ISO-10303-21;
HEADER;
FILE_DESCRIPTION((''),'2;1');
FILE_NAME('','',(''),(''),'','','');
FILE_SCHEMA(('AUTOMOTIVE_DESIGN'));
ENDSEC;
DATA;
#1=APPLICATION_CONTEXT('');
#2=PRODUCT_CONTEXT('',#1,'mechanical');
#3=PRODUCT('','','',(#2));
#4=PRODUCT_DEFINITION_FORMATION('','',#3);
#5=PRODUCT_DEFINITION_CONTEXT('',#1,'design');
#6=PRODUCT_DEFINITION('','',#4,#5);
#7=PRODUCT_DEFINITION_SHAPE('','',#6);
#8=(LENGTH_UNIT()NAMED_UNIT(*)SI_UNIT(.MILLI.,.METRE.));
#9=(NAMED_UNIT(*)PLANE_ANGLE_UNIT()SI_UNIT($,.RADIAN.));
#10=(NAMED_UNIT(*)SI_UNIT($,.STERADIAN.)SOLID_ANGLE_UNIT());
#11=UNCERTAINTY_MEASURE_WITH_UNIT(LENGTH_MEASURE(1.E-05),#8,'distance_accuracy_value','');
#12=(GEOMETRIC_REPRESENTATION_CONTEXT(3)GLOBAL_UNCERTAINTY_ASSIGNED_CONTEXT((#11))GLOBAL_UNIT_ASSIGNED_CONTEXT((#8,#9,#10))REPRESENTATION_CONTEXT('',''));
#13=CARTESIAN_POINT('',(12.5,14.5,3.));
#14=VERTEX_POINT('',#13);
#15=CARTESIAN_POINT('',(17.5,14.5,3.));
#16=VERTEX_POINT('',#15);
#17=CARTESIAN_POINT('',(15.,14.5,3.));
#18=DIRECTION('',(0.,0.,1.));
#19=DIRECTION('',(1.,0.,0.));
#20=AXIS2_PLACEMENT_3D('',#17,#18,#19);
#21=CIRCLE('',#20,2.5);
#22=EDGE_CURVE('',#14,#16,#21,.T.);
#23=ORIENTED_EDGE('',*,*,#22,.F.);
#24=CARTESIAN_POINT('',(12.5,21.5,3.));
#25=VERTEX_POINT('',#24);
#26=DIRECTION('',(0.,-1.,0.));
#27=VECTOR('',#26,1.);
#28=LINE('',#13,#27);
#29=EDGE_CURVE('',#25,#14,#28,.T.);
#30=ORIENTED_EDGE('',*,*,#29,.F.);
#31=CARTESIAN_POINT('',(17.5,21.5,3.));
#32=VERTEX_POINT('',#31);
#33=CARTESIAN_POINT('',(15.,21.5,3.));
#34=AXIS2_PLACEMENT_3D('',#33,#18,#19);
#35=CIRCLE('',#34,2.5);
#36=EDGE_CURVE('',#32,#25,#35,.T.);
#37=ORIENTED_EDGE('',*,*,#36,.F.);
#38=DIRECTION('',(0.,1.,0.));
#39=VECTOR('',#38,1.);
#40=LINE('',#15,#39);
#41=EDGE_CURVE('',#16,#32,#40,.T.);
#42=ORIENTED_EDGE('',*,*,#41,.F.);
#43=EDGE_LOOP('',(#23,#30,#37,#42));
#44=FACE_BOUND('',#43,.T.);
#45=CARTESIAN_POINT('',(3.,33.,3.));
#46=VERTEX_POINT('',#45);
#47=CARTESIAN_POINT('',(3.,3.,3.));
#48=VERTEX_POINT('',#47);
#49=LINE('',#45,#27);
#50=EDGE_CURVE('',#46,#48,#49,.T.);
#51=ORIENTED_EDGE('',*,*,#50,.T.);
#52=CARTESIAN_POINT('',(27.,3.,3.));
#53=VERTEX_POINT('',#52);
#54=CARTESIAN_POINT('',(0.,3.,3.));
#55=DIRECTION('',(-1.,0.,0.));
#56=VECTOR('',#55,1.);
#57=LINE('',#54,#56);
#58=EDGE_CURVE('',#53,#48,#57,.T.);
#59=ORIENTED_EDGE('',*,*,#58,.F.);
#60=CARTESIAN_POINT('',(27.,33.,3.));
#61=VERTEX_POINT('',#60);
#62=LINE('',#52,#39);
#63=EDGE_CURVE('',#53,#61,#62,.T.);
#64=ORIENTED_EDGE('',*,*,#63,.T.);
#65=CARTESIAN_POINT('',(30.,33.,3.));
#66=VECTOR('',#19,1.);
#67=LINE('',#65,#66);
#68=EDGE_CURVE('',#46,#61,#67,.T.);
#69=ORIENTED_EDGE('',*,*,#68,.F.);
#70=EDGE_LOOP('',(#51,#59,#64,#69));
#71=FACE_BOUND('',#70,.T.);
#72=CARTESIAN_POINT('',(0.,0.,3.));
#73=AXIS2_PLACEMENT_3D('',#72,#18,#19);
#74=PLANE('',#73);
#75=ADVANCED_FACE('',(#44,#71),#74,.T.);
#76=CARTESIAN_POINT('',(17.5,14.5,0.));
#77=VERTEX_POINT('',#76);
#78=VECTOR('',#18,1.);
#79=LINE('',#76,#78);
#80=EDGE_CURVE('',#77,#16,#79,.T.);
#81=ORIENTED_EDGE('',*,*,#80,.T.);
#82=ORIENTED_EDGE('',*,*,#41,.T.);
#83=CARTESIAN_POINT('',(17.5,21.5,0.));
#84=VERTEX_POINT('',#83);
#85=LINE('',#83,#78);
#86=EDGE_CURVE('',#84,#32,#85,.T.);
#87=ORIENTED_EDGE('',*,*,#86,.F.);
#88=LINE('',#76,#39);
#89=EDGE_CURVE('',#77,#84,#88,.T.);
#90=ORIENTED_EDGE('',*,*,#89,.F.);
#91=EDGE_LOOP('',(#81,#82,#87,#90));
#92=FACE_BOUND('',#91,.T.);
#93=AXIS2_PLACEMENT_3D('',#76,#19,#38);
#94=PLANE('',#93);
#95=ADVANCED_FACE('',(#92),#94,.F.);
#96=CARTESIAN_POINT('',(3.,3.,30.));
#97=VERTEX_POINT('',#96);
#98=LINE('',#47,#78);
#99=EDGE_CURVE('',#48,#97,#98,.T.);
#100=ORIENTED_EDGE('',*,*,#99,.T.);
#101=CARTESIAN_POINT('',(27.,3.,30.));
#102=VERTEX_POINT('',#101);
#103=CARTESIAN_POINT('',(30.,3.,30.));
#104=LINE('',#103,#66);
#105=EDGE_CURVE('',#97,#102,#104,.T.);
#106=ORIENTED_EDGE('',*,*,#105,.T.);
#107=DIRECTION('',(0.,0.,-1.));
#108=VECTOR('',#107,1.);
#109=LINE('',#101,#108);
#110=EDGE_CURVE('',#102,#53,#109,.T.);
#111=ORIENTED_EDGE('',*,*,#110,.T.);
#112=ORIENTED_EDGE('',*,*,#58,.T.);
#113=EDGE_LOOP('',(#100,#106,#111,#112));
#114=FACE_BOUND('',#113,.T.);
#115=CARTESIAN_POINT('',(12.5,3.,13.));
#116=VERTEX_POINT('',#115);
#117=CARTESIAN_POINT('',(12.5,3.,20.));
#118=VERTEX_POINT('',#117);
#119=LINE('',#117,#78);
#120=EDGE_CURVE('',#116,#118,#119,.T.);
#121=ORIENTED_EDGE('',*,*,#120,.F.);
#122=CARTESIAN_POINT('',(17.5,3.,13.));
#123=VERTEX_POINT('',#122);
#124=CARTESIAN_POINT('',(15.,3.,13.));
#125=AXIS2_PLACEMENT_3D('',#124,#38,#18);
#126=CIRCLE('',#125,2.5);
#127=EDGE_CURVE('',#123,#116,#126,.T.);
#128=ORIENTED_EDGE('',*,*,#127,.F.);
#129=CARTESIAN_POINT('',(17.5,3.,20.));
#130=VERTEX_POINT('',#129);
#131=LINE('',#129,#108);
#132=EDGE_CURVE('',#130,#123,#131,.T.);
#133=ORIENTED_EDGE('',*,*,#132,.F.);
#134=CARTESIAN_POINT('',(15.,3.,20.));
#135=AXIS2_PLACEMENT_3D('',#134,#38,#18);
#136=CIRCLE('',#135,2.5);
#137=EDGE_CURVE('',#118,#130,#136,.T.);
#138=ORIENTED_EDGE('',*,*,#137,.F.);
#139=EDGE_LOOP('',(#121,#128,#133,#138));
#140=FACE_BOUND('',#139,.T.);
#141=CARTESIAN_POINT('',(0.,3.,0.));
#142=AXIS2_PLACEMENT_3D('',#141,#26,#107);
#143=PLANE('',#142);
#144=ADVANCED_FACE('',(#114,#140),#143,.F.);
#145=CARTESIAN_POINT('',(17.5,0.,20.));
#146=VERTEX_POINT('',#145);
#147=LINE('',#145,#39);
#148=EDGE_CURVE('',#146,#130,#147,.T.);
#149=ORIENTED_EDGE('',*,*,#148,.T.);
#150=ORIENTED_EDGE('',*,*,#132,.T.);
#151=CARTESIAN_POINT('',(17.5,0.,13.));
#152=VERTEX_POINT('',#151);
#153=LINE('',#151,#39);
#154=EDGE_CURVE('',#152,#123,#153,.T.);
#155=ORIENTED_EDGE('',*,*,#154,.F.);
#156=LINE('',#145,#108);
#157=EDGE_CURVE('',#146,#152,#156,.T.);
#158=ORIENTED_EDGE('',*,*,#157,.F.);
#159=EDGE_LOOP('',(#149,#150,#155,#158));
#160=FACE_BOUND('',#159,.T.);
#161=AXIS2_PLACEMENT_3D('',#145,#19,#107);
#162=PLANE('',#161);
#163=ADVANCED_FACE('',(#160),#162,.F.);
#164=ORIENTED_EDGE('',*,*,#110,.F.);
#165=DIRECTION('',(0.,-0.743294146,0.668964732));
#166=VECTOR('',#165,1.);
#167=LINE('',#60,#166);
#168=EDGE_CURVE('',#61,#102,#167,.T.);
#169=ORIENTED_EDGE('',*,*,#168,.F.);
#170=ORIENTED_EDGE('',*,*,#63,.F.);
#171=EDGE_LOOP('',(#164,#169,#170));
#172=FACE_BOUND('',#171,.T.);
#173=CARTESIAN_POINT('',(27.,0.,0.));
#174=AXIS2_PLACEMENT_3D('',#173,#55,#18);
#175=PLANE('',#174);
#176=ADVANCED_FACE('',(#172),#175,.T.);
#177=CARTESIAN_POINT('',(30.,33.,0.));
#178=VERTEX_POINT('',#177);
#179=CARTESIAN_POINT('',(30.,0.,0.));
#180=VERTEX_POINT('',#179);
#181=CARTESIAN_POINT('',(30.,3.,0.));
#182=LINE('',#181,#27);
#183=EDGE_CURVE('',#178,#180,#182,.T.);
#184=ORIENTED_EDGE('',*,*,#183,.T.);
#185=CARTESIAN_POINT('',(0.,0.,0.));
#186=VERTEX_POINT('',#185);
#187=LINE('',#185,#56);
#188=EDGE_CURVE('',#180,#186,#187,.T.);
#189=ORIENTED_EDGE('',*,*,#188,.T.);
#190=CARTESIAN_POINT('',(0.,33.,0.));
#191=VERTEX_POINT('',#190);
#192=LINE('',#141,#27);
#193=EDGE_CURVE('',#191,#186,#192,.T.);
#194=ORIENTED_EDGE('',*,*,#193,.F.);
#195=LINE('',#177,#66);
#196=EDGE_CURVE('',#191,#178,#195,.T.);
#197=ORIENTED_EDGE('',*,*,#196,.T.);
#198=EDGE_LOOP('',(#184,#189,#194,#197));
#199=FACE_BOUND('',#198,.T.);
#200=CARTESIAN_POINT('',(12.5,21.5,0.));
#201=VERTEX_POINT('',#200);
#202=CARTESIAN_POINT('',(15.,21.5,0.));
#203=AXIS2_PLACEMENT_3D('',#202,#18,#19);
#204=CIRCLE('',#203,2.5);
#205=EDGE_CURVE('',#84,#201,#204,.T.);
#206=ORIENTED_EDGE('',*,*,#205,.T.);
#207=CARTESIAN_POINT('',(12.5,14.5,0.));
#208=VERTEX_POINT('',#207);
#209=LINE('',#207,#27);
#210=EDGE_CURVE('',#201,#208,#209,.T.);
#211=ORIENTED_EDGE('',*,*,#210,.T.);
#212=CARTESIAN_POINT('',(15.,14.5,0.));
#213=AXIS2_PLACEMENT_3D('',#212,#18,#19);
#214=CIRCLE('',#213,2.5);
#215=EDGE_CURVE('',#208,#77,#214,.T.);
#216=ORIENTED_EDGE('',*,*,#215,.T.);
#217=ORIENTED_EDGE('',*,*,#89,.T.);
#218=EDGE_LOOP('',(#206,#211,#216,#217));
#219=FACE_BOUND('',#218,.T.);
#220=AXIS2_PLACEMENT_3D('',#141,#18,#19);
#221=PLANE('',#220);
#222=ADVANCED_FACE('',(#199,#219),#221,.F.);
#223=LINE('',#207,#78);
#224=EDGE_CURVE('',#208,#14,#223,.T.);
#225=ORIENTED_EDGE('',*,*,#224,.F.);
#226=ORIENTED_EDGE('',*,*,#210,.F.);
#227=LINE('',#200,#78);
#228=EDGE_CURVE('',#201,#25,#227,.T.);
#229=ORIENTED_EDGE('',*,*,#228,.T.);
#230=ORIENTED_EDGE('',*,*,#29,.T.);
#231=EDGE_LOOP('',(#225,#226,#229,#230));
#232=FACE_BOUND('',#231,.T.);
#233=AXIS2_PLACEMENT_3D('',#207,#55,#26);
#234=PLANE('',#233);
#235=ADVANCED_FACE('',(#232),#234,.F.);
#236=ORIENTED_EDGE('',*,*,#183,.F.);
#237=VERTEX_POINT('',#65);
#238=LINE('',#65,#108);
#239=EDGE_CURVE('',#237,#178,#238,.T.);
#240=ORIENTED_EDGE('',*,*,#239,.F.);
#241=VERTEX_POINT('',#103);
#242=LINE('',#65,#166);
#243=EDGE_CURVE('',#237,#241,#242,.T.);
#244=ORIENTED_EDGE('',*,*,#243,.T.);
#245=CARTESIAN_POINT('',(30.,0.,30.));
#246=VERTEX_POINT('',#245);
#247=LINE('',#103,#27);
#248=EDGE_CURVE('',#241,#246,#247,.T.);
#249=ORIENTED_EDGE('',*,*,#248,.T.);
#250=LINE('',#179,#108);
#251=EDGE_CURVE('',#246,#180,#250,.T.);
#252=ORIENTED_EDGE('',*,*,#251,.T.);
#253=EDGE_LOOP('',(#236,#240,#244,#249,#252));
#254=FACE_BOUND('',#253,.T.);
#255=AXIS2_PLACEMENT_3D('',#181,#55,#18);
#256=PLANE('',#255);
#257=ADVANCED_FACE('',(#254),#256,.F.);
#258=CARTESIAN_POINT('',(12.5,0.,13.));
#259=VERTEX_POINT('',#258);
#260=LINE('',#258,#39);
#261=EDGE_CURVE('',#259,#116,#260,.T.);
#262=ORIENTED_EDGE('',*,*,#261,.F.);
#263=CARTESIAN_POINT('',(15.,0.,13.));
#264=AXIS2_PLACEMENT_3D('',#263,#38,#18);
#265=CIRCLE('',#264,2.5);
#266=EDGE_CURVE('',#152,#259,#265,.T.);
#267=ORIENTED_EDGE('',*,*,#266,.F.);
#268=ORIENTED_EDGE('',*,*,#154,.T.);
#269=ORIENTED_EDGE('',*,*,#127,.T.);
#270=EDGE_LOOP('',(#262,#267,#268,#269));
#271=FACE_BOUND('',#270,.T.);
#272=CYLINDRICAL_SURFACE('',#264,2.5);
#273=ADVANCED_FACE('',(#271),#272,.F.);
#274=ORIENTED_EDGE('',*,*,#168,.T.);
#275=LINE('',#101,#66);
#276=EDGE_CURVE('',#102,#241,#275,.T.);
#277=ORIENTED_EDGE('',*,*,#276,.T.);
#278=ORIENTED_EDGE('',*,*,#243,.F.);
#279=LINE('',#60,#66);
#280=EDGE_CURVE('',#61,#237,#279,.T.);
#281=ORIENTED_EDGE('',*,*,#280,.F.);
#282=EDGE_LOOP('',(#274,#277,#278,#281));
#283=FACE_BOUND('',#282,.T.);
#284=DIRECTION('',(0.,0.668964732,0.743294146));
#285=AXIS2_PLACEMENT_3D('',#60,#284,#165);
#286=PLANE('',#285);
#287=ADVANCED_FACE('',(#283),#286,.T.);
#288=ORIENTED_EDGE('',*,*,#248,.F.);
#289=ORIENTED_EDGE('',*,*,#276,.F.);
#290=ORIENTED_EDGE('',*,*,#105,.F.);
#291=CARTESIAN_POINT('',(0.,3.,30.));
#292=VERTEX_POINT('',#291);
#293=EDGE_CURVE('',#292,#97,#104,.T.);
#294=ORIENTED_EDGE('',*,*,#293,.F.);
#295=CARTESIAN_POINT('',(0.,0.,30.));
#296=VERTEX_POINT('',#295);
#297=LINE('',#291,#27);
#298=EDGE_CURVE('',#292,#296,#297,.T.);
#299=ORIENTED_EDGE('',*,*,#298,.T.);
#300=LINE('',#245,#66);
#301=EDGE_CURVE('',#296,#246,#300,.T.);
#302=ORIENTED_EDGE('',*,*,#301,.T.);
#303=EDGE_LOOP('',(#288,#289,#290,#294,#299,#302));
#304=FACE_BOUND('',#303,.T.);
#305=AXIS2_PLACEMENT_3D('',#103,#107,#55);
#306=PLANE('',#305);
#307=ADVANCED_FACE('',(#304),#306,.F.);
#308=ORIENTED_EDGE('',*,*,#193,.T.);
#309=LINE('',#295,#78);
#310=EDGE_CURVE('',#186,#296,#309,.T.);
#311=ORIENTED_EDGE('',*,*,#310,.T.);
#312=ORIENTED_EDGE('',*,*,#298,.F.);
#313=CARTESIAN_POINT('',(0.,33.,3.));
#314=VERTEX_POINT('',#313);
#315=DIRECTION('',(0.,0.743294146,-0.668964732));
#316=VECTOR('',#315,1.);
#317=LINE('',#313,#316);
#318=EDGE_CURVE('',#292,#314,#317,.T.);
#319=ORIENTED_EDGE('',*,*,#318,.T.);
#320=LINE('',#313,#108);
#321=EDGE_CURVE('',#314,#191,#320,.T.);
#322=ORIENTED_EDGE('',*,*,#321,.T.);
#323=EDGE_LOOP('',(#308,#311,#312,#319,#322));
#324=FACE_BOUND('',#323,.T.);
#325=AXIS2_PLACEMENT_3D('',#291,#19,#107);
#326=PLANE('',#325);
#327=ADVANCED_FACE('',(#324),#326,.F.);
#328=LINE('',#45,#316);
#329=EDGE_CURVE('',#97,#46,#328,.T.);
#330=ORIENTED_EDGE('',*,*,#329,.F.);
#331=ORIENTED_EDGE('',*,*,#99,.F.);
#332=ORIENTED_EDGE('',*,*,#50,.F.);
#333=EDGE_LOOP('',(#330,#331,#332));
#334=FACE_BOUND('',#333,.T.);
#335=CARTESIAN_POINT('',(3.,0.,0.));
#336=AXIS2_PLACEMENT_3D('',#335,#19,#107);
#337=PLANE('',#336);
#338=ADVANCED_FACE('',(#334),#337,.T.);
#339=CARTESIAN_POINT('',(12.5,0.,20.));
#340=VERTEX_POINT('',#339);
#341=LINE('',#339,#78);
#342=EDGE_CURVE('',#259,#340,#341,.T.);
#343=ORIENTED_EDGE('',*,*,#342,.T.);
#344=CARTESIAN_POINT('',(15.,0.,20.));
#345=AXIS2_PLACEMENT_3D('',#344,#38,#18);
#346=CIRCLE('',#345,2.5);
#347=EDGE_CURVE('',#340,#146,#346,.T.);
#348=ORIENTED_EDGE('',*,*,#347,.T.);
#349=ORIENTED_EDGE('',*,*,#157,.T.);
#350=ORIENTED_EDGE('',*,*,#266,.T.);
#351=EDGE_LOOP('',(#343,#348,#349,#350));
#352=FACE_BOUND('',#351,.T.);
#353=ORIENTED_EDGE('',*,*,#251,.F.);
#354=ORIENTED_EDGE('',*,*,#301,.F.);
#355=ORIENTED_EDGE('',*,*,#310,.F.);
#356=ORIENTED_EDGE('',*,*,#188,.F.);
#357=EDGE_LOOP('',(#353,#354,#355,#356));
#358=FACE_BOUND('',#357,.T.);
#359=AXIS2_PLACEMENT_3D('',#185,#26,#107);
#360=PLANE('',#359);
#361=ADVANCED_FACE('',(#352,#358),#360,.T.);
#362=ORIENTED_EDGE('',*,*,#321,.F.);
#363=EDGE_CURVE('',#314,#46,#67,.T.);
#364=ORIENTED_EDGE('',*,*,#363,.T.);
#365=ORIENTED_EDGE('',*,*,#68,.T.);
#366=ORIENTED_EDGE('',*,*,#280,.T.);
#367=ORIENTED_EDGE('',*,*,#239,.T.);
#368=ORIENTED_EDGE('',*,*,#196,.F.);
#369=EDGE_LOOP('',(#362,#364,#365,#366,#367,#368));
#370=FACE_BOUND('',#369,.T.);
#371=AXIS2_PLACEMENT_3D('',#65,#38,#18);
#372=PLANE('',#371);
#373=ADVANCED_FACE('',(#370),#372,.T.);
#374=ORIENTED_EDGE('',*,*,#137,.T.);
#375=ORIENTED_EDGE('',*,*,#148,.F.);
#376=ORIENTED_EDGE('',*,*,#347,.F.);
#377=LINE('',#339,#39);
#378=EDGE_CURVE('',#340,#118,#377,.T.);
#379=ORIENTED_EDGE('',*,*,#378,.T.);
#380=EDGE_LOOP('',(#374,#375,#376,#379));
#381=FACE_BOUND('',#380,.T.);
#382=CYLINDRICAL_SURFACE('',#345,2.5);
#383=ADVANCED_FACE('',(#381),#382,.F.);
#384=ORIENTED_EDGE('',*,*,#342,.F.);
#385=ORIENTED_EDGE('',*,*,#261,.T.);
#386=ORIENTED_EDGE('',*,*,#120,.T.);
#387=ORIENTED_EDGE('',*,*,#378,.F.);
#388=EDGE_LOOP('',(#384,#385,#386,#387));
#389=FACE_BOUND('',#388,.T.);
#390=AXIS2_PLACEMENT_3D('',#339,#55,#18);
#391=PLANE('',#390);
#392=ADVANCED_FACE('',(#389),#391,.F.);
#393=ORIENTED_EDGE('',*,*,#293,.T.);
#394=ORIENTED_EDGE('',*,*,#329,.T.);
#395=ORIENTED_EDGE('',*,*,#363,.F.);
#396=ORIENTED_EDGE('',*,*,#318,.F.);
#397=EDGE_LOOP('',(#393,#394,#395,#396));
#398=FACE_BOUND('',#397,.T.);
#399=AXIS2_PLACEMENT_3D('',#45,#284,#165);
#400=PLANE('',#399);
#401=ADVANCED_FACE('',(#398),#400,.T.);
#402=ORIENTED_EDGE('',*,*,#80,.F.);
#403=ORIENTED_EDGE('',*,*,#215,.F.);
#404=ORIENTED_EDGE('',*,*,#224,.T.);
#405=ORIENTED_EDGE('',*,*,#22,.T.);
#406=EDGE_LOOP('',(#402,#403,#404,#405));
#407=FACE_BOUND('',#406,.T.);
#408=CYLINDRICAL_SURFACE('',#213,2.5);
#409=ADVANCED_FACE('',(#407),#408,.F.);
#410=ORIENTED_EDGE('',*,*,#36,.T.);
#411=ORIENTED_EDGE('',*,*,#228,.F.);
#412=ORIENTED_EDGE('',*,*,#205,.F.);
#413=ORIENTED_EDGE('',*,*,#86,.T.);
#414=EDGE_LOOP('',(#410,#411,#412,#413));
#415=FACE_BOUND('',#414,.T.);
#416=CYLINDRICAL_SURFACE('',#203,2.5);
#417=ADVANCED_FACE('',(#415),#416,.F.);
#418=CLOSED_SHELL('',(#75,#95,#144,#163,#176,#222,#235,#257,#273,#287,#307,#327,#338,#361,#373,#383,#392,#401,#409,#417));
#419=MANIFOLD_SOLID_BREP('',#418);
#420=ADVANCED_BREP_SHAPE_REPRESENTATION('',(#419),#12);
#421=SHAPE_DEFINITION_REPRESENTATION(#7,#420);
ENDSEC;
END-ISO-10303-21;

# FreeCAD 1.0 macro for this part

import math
import FreeCAD as App
import Part
import Sketcher

V = App.Vector


def add_polygon(sketch, points):
    """Adds a closed chain of lines whose ends are joined by coincident constraints."""
    first, n = sketch.GeometryCount, len(points)
    for a, b in zip(points, points[1:] + points[:1]):
        sketch.addGeometry(Part.LineSegment(App.Vector(*a, 0), App.Vector(*b, 0)), False)
    for i in range(n):
        sketch.addConstraint(Sketcher.Constraint("Coincident", first + i, 2, first + (i + 1) % n, 1))

doc = App.newDocument("Part")
body = doc.addObject("PartDesign::Body", "Body")

# Sketch on XZ plane
sketch1 = body.newObject("Sketcher::SketchObject", "Sketch")
sketch1.AttachmentSupport = (doc.getObject("XZ_Plane"), [""])
sketch1.MapMode = "FlatFace"
add_polygon(sketch1, [(0, 0), (0, 30), (30, 30), (30, 0)])  # lines 0-3
sketch1.addConstraint(Sketcher.Constraint("Vertical", 0))
sketch1.addConstraint(Sketcher.Constraint("Horizontal", 1))
sketch1.addConstraint(Sketcher.Constraint("Vertical", 2))
sketch1.addConstraint(Sketcher.Constraint("Horizontal", 3))
sketch1.addConstraint(Sketcher.Constraint("Coincident", 3, 2, -1, 1))
sketch1.addConstraint(Sketcher.Constraint("Equal", 3, 0))
sketch1.addConstraint(Sketcher.Constraint("DistanceX", 1, 1, 1, 2, 30.0))
pad1 = body.newObject("PartDesign::Pad", "Pad")
pad1.Profile = sketch1
pad1.Length = 3
pad1.Reversed = True

# Sketch on XY plane
sketch2 = body.newObject("Sketcher::SketchObject", "Sketch001")
sketch2.AttachmentSupport = (doc.getObject("XY_Plane"), [""])
sketch2.MapMode = "FlatFace"
add_polygon(sketch2, [(30, 33), (30, 3), (0, 3), (0, 33)])  # lines 0-3
sketch2.addConstraint(Sketcher.Constraint("Vertical", 0))
sketch2.addConstraint(Sketcher.Constraint("Horizontal", 1))
sketch2.addConstraint(Sketcher.Constraint("Vertical", 2))
sketch2.addConstraint(Sketcher.Constraint("Horizontal", 3))
sketch2.addConstraint(Sketcher.Constraint("PointOnObject", 1, 2, -2))
sketch2.addConstraint(Sketcher.Constraint("Equal", 3, 0))
sketch2.addConstraint(Sketcher.Constraint("DistanceX", 1, 2, 1, 1, 30.0))
sketch2.addConstraint(Sketcher.Constraint("DistanceY", -1, 1, 0, 2, 3.0))
pad2 = body.newObject("PartDesign::Pad", "Pad001")
pad2.Profile = sketch2
pad2.Length = 3

# Sketch on YZ plane
sketch3 = body.newObject("Sketcher::SketchObject", "Sketch002")
sketch3.AttachmentSupport = (doc.getObject("YZ_Plane"), [""])
sketch3.MapMode = "FlatFace"
add_polygon(sketch3, [(33, 3), (3, 3), (3, 30)])  # lines 0-2
sketch3.addConstraint(Sketcher.Constraint("Horizontal", 0))
sketch3.addConstraint(Sketcher.Constraint("Vertical", 1))
sketch3.addConstraint(Sketcher.Constraint("DistanceX", 0, 2, 0, 1, 30.0))
sketch3.addConstraint(Sketcher.Constraint("DistanceY", 1, 1, 1, 2, 27.0))
sketch3.addConstraint(Sketcher.Constraint("DistanceX", -1, 1, 0, 2, 3.0))
sketch3.addConstraint(Sketcher.Constraint("DistanceY", -1, 1, 0, 2, 3.0))
pad3 = body.newObject("PartDesign::Pad", "Pad002")
pad3.Profile = sketch3
pad3.Length = 3

# Sketch on YZ plane
sketch4 = body.newObject("Sketcher::SketchObject", "Sketch003")
sketch4.AttachmentSupport = (doc.getObject("YZ_Plane"), [""])
sketch4.MapMode = "FlatFace"
sketch4.AttachmentOffset = App.Placement(V(0, 0, 30), App.Rotation())
add_polygon(sketch4, [(3, 30), (3, 3), (33, 3)])  # lines 0-2
sketch4.addConstraint(Sketcher.Constraint("Vertical", 0))
sketch4.addConstraint(Sketcher.Constraint("Horizontal", 1))
sketch4.addConstraint(Sketcher.Constraint("DistanceX", 1, 1, 1, 2, 30.0))
sketch4.addConstraint(Sketcher.Constraint("DistanceY", 0, 2, 0, 1, 27.0))
sketch4.addConstraint(Sketcher.Constraint("DistanceX", -1, 1, 0, 2, 3.0))
sketch4.addConstraint(Sketcher.Constraint("DistanceY", -1, 1, 0, 2, 3.0))
pad4 = body.newObject("PartDesign::Pad", "Pad003")
pad4.Profile = sketch4
pad4.Length = 3
pad4.Reversed = True

# Sketch on XY plane
sketch5 = body.newObject("Sketcher::SketchObject", "Sketch004")
sketch5.AttachmentSupport = (doc.getObject("XY_Plane"), [""])
sketch5.MapMode = "FlatFace"
sketch5.AttachmentOffset = App.Placement(V(0, 0, 3), App.Rotation())
sketch5.addGeometry(Part.LineSegment(V(12.5, 21.5, 0), V(12.5, 14.5, 0)), False)
sketch5.addGeometry(Part.ArcOfCircle(Part.Circle(V(15, 14.5, 0), V(0, 0, 1), 2.5), math.radians(180), math.radians(360)), False)
sketch5.addGeometry(Part.LineSegment(V(17.5, 14.5, 0), V(17.5, 21.5, 0)), False)
sketch5.addGeometry(Part.ArcOfCircle(Part.Circle(V(15, 21.5, 0), V(0, 0, 1), 2.5), math.radians(0), math.radians(180)), False)
sketch5.addConstraint(Sketcher.Constraint("Tangent", 0, 2, 1, 1))
sketch5.addConstraint(Sketcher.Constraint("Tangent", 1, 2, 2, 1))
sketch5.addConstraint(Sketcher.Constraint("Tangent", 2, 2, 3, 1))
sketch5.addConstraint(Sketcher.Constraint("Tangent", 3, 2, 0, 1))
sketch5.addConstraint(Sketcher.Constraint("Vertical", 0))
sketch5.addConstraint(Sketcher.Constraint("Vertical", 2))
sketch5.addConstraint(Sketcher.Constraint("Radius", 1, 2.5))
sketch5.addConstraint(Sketcher.Constraint("DistanceY", 0, 2, 0, 1, 7.0))
sketch5.addConstraint(Sketcher.Constraint("DistanceX", -1, 1, 1, 3, 15.0))
sketch5.addConstraint(Sketcher.Constraint("DistanceY", -1, 1, 1, 3, 14.5))
pocket1 = body.newObject("PartDesign::Pocket", "Pocket")
pocket1.Profile = sketch5
pocket1.Length = 3

# Sketch on XZ plane
sketch6 = body.newObject("Sketcher::SketchObject", "Sketch005")
sketch6.AttachmentSupport = (doc.getObject("XZ_Plane"), [""])
sketch6.MapMode = "FlatFace"
sketch6.AttachmentOffset = App.Placement(V(0, 0, -3), App.Rotation())
sketch6.addGeometry(Part.LineSegment(V(12.5, 13, 0), V(12.5, 20, 0)), False)
sketch6.addGeometry(Part.ArcOfCircle(Part.Circle(V(15, 20, 0), V(0, 0, 1), 2.5), math.radians(0), math.radians(180)), False)
sketch6.addGeometry(Part.LineSegment(V(17.5, 20, 0), V(17.5, 13, 0)), False)
sketch6.addGeometry(Part.ArcOfCircle(Part.Circle(V(15, 13, 0), V(0, 0, 1), 2.5), math.radians(180), math.radians(360)), False)
sketch6.addConstraint(Sketcher.Constraint("Tangent", 0, 2, 1, 2))
sketch6.addConstraint(Sketcher.Constraint("Tangent", 1, 1, 2, 1))
sketch6.addConstraint(Sketcher.Constraint("Tangent", 2, 2, 3, 2))
sketch6.addConstraint(Sketcher.Constraint("Tangent", 3, 1, 0, 1))
sketch6.addConstraint(Sketcher.Constraint("Vertical", 0))
sketch6.addConstraint(Sketcher.Constraint("Vertical", 2))
sketch6.addConstraint(Sketcher.Constraint("Radius", 1, 2.5))
sketch6.addConstraint(Sketcher.Constraint("DistanceY", 0, 1, 0, 2, 7.0))
sketch6.addConstraint(Sketcher.Constraint("DistanceX", -1, 1, 1, 3, 15.0))
sketch6.addConstraint(Sketcher.Constraint("DistanceY", -1, 1, 1, 3, 20.0))
pocket2 = body.newObject("PartDesign::Pocket", "Pocket001")
pocket2.Profile = sketch6
pocket2.Length = 3
pocket2.Reversed = True

doc.recompute()
